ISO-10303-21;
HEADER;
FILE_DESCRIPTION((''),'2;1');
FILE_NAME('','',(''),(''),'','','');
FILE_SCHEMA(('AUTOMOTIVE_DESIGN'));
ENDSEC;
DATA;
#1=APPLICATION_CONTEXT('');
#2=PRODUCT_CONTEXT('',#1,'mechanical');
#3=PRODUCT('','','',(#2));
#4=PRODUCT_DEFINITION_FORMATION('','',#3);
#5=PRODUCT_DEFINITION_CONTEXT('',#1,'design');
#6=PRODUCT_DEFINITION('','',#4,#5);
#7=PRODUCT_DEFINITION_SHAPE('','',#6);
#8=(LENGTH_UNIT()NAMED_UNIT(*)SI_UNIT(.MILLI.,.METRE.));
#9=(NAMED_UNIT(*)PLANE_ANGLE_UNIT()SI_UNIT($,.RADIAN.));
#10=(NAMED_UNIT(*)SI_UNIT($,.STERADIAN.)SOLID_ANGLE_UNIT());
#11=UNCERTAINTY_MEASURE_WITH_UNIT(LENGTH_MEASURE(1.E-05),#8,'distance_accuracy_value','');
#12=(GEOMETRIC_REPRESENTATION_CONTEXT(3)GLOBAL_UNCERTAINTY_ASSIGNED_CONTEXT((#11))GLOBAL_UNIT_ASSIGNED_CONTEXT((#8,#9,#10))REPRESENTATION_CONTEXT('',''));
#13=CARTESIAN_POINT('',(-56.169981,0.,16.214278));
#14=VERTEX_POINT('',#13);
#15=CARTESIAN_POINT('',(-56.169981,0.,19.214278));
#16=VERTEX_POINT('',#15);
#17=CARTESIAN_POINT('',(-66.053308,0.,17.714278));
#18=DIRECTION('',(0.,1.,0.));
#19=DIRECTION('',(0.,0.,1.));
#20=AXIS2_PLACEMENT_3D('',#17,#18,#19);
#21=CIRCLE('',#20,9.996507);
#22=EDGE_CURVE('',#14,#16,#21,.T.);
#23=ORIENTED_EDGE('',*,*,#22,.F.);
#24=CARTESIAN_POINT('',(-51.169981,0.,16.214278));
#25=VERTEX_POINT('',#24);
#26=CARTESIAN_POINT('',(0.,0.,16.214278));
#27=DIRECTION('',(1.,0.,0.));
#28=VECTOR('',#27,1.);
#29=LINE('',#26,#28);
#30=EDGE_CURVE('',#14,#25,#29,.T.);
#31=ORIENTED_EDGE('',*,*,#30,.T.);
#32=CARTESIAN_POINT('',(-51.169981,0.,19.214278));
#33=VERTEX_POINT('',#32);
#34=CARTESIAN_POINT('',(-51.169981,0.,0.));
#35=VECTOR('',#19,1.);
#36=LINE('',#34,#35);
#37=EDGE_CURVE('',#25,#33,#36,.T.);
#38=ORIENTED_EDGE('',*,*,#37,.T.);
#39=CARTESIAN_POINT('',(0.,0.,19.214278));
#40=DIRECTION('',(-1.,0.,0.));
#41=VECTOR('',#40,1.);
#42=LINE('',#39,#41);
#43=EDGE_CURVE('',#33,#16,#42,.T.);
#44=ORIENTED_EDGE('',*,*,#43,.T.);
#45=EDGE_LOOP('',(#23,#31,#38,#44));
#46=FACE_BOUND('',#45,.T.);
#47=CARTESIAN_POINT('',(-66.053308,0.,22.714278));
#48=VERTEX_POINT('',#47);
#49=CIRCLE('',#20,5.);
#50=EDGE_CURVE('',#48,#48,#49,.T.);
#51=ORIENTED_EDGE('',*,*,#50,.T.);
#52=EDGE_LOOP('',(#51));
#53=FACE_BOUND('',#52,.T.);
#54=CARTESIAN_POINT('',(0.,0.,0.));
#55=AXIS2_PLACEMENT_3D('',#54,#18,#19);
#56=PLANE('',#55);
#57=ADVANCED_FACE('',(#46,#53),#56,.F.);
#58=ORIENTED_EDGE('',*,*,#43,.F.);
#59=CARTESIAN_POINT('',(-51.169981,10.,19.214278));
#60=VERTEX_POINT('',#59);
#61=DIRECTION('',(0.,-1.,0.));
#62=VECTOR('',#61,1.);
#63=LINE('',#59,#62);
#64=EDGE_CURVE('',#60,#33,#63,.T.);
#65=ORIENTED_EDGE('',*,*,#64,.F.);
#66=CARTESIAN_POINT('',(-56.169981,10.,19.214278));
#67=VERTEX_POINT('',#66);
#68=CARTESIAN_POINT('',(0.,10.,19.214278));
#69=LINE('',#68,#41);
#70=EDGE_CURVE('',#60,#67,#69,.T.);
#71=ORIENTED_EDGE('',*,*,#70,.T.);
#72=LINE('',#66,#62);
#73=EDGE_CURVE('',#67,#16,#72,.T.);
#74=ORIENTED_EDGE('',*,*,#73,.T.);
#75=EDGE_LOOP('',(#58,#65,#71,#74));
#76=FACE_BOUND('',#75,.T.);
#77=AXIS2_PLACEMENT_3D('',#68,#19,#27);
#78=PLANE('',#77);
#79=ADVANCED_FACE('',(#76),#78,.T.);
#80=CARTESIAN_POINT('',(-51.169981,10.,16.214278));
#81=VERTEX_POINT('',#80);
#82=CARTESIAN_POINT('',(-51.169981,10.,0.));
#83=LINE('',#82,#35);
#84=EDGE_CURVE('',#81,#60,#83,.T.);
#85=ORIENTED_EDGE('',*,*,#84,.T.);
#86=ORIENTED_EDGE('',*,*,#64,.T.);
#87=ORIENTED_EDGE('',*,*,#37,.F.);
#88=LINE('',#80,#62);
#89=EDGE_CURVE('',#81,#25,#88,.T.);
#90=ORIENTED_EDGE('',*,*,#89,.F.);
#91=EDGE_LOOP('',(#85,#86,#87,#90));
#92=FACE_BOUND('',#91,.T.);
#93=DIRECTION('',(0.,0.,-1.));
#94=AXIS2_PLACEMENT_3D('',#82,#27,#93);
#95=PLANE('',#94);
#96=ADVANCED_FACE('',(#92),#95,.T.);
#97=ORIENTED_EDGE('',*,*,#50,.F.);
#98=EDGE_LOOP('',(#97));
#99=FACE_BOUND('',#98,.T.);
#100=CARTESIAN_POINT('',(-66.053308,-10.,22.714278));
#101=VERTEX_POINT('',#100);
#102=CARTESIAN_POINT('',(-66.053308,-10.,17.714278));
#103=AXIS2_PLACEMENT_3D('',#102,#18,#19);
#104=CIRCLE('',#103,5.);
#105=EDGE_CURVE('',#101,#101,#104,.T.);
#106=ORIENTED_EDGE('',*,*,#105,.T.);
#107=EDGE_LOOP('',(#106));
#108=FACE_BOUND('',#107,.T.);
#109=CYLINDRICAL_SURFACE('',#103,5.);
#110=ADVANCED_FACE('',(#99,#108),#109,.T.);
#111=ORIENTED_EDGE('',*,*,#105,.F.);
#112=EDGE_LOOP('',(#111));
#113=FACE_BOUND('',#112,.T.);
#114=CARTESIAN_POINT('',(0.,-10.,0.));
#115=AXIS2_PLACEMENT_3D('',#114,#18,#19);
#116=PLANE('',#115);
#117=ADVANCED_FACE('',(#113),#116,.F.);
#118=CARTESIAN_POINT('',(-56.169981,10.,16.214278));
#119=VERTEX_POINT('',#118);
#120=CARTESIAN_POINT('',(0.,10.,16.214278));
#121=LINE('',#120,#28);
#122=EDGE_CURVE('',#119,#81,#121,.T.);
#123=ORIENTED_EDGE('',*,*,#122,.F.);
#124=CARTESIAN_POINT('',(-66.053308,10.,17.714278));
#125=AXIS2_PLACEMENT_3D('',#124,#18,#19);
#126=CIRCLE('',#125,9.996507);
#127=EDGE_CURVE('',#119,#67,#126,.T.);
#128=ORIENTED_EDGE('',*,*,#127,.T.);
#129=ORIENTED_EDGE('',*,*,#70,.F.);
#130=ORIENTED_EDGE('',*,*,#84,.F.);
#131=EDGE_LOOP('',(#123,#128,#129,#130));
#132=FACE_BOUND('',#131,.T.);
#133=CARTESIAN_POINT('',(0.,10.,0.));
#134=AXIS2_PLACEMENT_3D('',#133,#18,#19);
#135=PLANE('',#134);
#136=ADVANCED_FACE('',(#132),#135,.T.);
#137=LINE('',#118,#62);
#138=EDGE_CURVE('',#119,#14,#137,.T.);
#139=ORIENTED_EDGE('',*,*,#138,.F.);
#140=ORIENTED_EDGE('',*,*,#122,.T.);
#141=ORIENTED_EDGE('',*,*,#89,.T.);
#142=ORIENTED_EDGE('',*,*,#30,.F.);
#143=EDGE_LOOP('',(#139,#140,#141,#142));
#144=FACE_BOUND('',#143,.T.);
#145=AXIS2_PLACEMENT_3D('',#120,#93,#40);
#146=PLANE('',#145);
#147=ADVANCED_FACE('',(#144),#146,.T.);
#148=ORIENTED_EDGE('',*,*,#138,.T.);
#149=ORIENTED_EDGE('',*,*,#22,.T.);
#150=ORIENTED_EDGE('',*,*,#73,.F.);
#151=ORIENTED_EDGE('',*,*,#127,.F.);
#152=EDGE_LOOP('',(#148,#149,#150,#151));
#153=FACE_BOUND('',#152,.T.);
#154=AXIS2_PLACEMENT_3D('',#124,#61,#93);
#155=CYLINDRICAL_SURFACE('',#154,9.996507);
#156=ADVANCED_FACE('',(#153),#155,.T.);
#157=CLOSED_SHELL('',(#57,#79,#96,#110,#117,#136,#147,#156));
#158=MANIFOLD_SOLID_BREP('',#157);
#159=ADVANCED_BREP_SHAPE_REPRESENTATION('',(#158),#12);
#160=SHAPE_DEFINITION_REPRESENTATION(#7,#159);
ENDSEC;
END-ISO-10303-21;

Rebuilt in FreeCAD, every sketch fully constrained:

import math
import FreeCAD as App
import Part
import Sketcher

V = App.Vector

doc = App.newDocument("Part")
body = doc.addObject("PartDesign::Body", "Body")

# Sketch on XZ plane
sketch1 = doc.addObject("Sketcher::SketchObject", "Sketch")
body.addObject(sketch1)
sketch1.AttachmentSupport = (doc.XZ_Plane, [""])
sketch1.MapMode = "FlatFace"
sketch1.addGeometry([
    Part.LineSegment(V(-51.2, 16.2, 0), V(-56.2, 16.2, 0)),
    Part.ArcOfCircle(Part.Circle(V(-66.1, 17.7, 0), V(0, 0, 1), 10), math.radians(9), math.radians(351)),
    Part.LineSegment(V(-56.2, 19.2, 0), V(-51.2, 19.2, 0)),
    Part.LineSegment(V(-51.2, 19.2, 0), V(-51.2, 16.2, 0)),
], False)
sketch1.addConstraint([
    Sketcher.Constraint("Coincident", 0, 2, 1, 2),
    Sketcher.Constraint("Coincident", 1, 1, 2, 1),
    Sketcher.Constraint("Coincident", 2, 2, 3, 1),
    Sketcher.Constraint("Coincident", 3, 2, 0, 1),
    Sketcher.Constraint("Horizontal", 0),
    Sketcher.Constraint("Horizontal", 2),
    Sketcher.Constraint("Vertical", 3),
    Sketcher.Constraint("Vertical", 0, 2, 1, 1),
    Sketcher.Constraint("DistanceX", 0, 2, 0, 1, 5.0),
    Sketcher.Constraint("DistanceY", 3, 2, 3, 1, 3.0),
    Sketcher.Constraint("Radius", 1, 9.996507),
    Sketcher.Constraint("DistanceX", 1, 3, -1, 1, 66.053308),
    Sketcher.Constraint("DistanceY", -1, 1, 1, 3, 17.714278),
])
pad1 = doc.addObject("PartDesign::Pad", "Pad")
body.addObject(pad1)
pad1.Profile = sketch1
pad1.Length = 10
pad1.Reversed = True

# Sketch on XZ plane
sketch2 = doc.addObject("Sketcher::SketchObject", "Sketch001")
body.addObject(sketch2)
sketch2.AttachmentSupport = (doc.XZ_Plane, [""])
sketch2.MapMode = "FlatFace"
sketch2.addGeometry(Part.Circle(V(-66, 18, 0), V(0, 0, 1), 5), False)
sketch2.addConstraint([
    Sketcher.Constraint("Diameter", 0, 10.0),
    Sketcher.Constraint("DistanceX", 0, 3, -1, 1, 66.053308),
    Sketcher.Constraint("DistanceY", -1, 1, 0, 3, 17.714278),
])
pad2 = doc.addObject("PartDesign::Pad", "Pad001")
body.addObject(pad2)
pad2.Profile = sketch2
pad2.Length = 10

doc.recompute()
